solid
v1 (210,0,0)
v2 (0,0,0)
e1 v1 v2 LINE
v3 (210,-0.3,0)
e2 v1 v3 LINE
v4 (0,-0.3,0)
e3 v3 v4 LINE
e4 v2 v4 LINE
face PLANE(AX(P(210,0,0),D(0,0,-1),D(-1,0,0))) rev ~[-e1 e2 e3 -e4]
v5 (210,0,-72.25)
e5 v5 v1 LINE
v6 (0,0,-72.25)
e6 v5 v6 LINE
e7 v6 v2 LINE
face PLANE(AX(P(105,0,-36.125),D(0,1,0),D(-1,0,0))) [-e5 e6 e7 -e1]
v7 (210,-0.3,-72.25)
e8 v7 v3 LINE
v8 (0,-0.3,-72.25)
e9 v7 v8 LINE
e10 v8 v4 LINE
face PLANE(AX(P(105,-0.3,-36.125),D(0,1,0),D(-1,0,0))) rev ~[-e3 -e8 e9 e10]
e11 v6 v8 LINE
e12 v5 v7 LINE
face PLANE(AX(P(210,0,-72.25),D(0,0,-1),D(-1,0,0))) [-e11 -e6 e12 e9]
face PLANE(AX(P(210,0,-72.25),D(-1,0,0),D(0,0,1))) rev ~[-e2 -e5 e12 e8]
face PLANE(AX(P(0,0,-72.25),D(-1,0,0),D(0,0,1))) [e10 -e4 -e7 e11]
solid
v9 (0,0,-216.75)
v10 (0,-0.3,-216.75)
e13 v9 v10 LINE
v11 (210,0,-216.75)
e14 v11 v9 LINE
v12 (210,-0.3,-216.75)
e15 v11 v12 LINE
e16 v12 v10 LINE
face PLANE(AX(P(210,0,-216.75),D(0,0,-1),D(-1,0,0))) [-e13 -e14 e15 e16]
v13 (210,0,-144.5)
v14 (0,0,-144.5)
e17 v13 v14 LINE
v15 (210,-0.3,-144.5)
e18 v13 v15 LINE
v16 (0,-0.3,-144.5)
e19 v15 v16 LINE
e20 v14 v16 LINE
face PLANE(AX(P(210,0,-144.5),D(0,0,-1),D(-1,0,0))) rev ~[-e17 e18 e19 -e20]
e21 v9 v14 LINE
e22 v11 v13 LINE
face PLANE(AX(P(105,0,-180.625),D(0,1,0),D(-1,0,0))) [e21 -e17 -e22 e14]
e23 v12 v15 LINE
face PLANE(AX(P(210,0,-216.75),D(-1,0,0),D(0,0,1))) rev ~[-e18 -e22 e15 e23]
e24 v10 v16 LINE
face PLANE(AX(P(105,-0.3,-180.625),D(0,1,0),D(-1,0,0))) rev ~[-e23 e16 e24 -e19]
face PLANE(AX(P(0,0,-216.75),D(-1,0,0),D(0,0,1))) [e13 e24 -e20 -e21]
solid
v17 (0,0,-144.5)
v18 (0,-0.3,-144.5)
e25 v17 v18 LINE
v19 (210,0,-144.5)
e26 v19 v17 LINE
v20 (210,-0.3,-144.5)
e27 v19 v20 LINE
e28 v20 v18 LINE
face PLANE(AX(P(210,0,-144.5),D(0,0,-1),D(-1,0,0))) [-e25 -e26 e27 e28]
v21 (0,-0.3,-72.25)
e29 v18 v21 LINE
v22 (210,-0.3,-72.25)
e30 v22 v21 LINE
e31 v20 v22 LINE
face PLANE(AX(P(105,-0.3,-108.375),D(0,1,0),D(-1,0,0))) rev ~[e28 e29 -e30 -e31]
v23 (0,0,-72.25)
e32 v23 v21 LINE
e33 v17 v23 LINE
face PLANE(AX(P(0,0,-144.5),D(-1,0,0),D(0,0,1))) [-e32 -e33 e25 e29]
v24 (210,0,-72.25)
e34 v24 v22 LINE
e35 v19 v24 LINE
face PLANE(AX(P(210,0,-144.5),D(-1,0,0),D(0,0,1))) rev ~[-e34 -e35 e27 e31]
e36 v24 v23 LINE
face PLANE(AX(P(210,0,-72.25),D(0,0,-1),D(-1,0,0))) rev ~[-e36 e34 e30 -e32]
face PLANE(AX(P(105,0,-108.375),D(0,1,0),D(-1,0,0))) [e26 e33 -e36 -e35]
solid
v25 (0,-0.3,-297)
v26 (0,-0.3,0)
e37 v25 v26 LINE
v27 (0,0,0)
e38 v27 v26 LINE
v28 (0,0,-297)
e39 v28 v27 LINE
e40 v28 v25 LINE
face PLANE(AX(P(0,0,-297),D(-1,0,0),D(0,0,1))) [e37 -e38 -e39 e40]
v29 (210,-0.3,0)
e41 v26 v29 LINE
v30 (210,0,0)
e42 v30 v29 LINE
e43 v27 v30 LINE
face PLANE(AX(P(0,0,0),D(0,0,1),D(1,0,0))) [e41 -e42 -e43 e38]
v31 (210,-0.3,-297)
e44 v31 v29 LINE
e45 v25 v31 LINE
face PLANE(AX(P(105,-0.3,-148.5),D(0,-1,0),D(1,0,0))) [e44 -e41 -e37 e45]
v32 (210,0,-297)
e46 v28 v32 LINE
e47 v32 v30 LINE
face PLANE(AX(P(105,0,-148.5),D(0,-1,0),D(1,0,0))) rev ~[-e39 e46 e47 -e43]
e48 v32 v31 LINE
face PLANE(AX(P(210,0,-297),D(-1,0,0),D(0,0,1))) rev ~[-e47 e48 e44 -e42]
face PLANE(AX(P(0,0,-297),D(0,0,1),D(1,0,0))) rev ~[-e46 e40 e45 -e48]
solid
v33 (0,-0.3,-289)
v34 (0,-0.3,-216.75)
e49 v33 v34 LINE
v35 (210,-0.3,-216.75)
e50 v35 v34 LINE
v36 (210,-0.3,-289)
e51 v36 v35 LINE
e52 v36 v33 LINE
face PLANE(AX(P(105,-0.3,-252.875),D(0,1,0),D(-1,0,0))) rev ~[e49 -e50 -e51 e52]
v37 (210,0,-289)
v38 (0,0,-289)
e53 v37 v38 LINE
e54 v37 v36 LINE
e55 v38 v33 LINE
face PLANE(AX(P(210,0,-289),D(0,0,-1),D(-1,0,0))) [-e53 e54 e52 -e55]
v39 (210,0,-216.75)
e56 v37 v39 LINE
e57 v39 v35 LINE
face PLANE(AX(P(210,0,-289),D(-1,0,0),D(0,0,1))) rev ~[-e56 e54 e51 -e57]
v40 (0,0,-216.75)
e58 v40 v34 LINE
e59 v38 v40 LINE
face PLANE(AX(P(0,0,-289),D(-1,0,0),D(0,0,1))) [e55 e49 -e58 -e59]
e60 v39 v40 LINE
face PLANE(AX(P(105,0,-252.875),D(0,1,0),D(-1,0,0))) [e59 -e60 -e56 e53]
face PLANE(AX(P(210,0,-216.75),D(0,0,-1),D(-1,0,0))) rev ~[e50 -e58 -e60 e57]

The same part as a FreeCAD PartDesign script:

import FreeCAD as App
import Part
import Sketcher
from FreeCAD import Vector
Q = App.Units.Quantity


def add_polygon(sketch, points):
    """Adds a closed chain of lines whose ends are joined by coincident constraints."""
    first, n = sketch.GeometryCount, len(points)
    for a, b in zip(points, points[1:] + points[:1]):
        sketch.addGeometry(Part.LineSegment(App.Vector(*a, 0), App.Vector(*b, 0)), False)
    for i in range(n):
        sketch.addConstraint(Sketcher.Constraint("Coincident", first + i, 2, first + (i + 1) % n, 1))

doc = App.newDocument("Part")
body = doc.addObject("PartDesign::Body", "Body")

# Sketch on XZ plane
sketch1 = body.newObject("Sketcher::SketchObject", "Sketch")
sketch1.AttachmentSupport = (doc.getObject("XZ_Plane"), [""])
sketch1.MapMode = "FlatFace"
add_polygon(sketch1, [(0, 0), (0, -297), (210, -297), (210, 0)])  # lines 0-3
sketch1.addConstraint([
    Sketcher.Constraint("Vertical", 0),
    Sketcher.Constraint("Horizontal", 1),
    Sketcher.Constraint("Vertical", 2),
    Sketcher.Constraint("Horizontal", 3),
    Sketcher.Constraint("Coincident", 3, 2, -1, 1),
    Sketcher.Constraint("DistanceX", 1, 1, 1, 2, Q("210 mm")),
    Sketcher.Constraint("DistanceY", 0, 2, 0, 1, Q("297 mm")),
])
pad1 = body.newObject("PartDesign::Pad", "Pad")
pad1.Profile = sketch1
pad1.Length = 0.3
body2 = doc.addObject("PartDesign::Body", "Body001")

# Sketch on XZ plane
sketch2 = body2.newObject("Sketcher::SketchObject", "Sketch001")
sketch2.AttachmentSupport = (doc.getObject("XZ_Plane001"), [""])
sketch2.MapMode = "FlatFace"
add_polygon(sketch2, [(210, 0), (210, -72.25), (0, -72.25), (0, 0)])  # lines 0-3
sketch2.addConstraint([
    Sketcher.Constraint("Vertical", 0),
    Sketcher.Constraint("Horizontal", 1),
    Sketcher.Constraint("Vertical", 2),
    Sketcher.Constraint("Horizontal", 3),
    Sketcher.Constraint("Coincident", 2, 2, -1, 1),
    Sketcher.Constraint("DistanceX", 1, 2, 1, 1, Q("210 mm")),
    Sketcher.Constraint("DistanceY", 0, 2, 0, 1, Q("72.25 mm")),
])
pad2 = body2.newObject("PartDesign::Pad", "Pad001")
pad2.Profile = sketch2
pad2.Length = 0.3
body3 = doc.addObject("PartDesign::Body", "Body002")

# Sketch on XZ plane
sketch3 = body3.newObject("Sketcher::SketchObject", "Sketch002")
sketch3.AttachmentSupport = (doc.getObject("XZ_Plane002"), [""])
sketch3.MapMode = "FlatFace"
add_polygon(sketch3, [(210, -72.25), (210, -144.5), (0, -144.5), (0, -72.25)])  # lines 0-3
sketch3.addConstraint([
    Sketcher.Constraint("Vertical", 0),
    Sketcher.Constraint("Horizontal", 1),
    Sketcher.Constraint("Vertical", 2),
    Sketcher.Constraint("Horizontal", 3),
    Sketcher.Constraint("PointOnObject", 1, 2, -2),
    Sketcher.Constraint("DistanceX", 1, 2, 1, 1, Q("210 mm")),
    Sketcher.Constraint("DistanceY", 0, 2, 0, 1, Q("72.25 mm")),
    Sketcher.Constraint("DistanceY", 0, 2, -1, 1, Q("144.5 mm")),
])
pad3 = body3.newObject("PartDesign::Pad", "Pad002")
pad3.Profile = sketch3
pad3.Length = 0.3
body4 = doc.addObject("PartDesign::Body", "Body003")

# Sketch on XZ plane
sketch4 = body4.newObject("Sketcher::SketchObject", "Sketch003")
sketch4.AttachmentSupport = (doc.getObject("XZ_Plane003"), [""])
sketch4.MapMode = "FlatFace"
add_polygon(sketch4, [(210, -144.5), (210, -216.75), (0, -216.75), (0, -144.5)])  # lines 0-3
sketch4.addConstraint([
    Sketcher.Constraint("Vertical", 0),
    Sketcher.Constraint("Horizontal", 1),
    Sketcher.Constraint("Vertical", 2),
    Sketcher.Constraint("Horizontal", 3),
    Sketcher.Constraint("PointOnObject", 1, 2, -2),
    Sketcher.Constraint("DistanceX", 1, 2, 1, 1, Q("210 mm")),
    Sketcher.Constraint("DistanceY", 0, 2, 0, 1, Q("72.25 mm")),
    Sketcher.Constraint("DistanceY", 2, 2, -1, 1, Q("144.5 mm")),
])
pad4 = body4.newObject("PartDesign::Pad", "Pad003")
pad4.Profile = sketch4
pad4.Length = 0.3
body5 = doc.addObject("PartDesign::Body", "Body004")

# Sketch on XZ plane
sketch5 = body5.newObject("Sketcher::SketchObject", "Sketch004")
sketch5.AttachmentSupport = (doc.getObject("XZ_Plane004"), [""])
sketch5.MapMode = "FlatFace"
add_polygon(sketch5, [(210, -216.75), (210, -289), (0, -289), (0, -216.75)])  # lines 0-3
sketch5.addConstraint([
    Sketcher.Constraint("Vertical", 0),
    Sketcher.Constraint("Horizontal", 1),
    Sketcher.Constraint("Vertical", 2),
    Sketcher.Constraint("Horizontal", 3),
    Sketcher.Constraint("PointOnObject", 1, 2, -2),
    Sketcher.Constraint("DistanceX", 1, 2, 1, 1, Q("210 mm")),
    Sketcher.Constraint("DistanceY", 0, 2, -1, 1, Q("289 mm")),
    Sketcher.Constraint("DistanceY", 0, 2, 0, 1, Q("72.25 mm")),
])
pad5 = body5.newObject("PartDesign::Pad", "Pad004")
pad5.Profile = sketch5
pad5.Length = 0.3

doc.recompute()
